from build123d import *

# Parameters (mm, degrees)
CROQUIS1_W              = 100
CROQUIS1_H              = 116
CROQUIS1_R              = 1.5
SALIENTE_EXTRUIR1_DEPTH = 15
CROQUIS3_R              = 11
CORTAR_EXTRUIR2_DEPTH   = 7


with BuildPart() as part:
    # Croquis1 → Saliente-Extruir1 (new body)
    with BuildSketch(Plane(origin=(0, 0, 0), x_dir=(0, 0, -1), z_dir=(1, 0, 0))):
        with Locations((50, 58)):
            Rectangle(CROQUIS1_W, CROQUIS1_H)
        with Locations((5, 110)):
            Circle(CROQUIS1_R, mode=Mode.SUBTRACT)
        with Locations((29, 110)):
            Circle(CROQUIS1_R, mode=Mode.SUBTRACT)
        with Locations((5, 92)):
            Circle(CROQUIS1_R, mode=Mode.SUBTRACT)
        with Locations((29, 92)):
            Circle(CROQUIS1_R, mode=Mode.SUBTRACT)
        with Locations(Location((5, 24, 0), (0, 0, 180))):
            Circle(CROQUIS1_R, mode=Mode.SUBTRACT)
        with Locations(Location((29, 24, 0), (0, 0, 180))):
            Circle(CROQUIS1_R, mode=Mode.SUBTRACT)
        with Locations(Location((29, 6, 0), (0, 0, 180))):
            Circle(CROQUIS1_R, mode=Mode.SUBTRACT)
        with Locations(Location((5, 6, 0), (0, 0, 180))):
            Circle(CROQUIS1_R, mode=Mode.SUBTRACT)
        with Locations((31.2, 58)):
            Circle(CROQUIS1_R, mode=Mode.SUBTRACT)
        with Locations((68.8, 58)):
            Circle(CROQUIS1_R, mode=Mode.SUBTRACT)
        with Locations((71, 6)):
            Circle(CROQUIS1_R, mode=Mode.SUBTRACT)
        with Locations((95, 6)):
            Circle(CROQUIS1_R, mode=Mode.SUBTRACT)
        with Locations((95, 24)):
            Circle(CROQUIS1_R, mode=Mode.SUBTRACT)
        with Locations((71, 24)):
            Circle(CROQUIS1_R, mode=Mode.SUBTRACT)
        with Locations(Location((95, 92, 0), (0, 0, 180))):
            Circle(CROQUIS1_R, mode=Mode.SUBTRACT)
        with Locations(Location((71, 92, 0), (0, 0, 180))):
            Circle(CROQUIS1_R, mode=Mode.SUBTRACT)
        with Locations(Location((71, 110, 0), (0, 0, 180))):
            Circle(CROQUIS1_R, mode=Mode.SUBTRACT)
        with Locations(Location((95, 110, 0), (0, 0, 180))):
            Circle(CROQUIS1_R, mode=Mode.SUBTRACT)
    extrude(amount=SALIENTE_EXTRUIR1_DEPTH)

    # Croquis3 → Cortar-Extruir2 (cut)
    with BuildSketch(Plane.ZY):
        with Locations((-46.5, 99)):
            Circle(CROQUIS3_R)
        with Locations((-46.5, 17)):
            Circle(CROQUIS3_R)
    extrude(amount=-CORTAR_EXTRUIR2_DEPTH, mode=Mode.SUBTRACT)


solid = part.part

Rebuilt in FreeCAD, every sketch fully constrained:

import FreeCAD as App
import Part
import Sketcher
from FreeCAD import Vector

doc = App.newDocument("Part")
params = doc.addObject("Spreadsheet::Sheet", "Params")
for row, (alias, value) in enumerate([
    ("sketch1_diameter", "3 mm"),
    ("sketch1_width", "116 mm"),
    ("sketch1_height", "100 mm"),
    ("pad1_length", "15 mm"),
    ("sketch2_diameter", "22 mm"),
    ("pocket1_length", "7 mm"),
], start=1):
    params.set(f"A{row}", alias)
    params.set(f"B{row}", "=" + value)
    params.setAlias(f"B{row}", alias)

body = doc.addObject("PartDesign::Body", "Body")

# Sketch on YZ plane
sketch1 = body.newObject("Sketcher::SketchObject", "Sketch")
sketch1.AttachmentSupport = (doc.getObject("YZ_Plane"), [""])
sketch1.MapMode = "FlatFace"
sketch1.addGeometry(Part.LineSegment(Vector(116, 0, 0), Vector(0, 0, 0)), False)
sketch1.addGeometry(Part.LineSegment(Vector(0, 0, 0), Vector(0, -100, 0)), False)
sketch1.addGeometry(Part.LineSegment(Vector(0, -100, 0), Vector(116, -100, 0)), False)
sketch1.addGeometry(Part.LineSegment(Vector(116, -100, 0), Vector(116, 0, 0)), False)
sketch1.addGeometry(Part.Circle(Vector(6, -5, 0), Vector(0, 0, 1), 1.5), False)
sketch1.addGeometry(Part.Circle(Vector(24, -5, 0), Vector(0, 0, 1), 1.5), False)
sketch1.addGeometry(Part.Circle(Vector(6, -29, 0), Vector(0, 0, 1), 1.5), False)
sketch1.addGeometry(Part.Circle(Vector(24, -29, 0), Vector(0, 0, 1), 1.5), False)
sketch1.addGeometry(Part.Circle(Vector(58, -31.2, 0), Vector(0, 0, 1), 1.5), False)
sketch1.addGeometry(Part.Circle(Vector(6, -71, 0), Vector(0, 0, 1), 1.5), False)
sketch1.addGeometry(Part.Circle(Vector(24, -71, 0), Vector(0, 0, 1), 1.5), False)
sketch1.addGeometry(Part.Circle(Vector(6, -95, 0), Vector(0, 0, 1), 1.5), False)
sketch1.addGeometry(Part.Circle(Vector(24, -95, 0), Vector(0, 0, 1), 1.5), False)
sketch1.addGeometry(Part.Circle(Vector(58, -68.8, 0), Vector(0, 0, 1), 1.5), False)
sketch1.addGeometry(Part.Circle(Vector(92, -5, 0), Vector(0, 0, 1), 1.5), False)
sketch1.addGeometry(Part.Circle(Vector(110, -5, 0), Vector(0, 0, 1), 1.5), False)
sketch1.addGeometry(Part.Circle(Vector(92, -29, 0), Vector(0, 0, 1), 1.5), False)
sketch1.addGeometry(Part.Circle(Vector(110, -29, 0), Vector(0, 0, 1), 1.5), False)
sketch1.addGeometry(Part.Circle(Vector(92, -71, 0), Vector(0, 0, 1), 1.5), False)
sketch1.addGeometry(Part.Circle(Vector(110, -71, 0), Vector(0, 0, 1), 1.5), False)
sketch1.addGeometry(Part.Circle(Vector(92, -95, 0), Vector(0, 0, 1), 1.5), False)
sketch1.addGeometry(Part.Circle(Vector(110, -95, 0), Vector(0, 0, 1), 1.5), False)
sketch1.addConstraint(Sketcher.Constraint("Coincident", 0, 2, 1, 1))
sketch1.addConstraint(Sketcher.Constraint("Coincident", 1, 2, 2, 1))
sketch1.addConstraint(Sketcher.Constraint("Coincident", 2, 2, 3, 1))
sketch1.addConstraint(Sketcher.Constraint("Coincident", 3, 2, 0, 1))
sketch1.addConstraint(Sketcher.Constraint("Horizontal", 0))
sketch1.addConstraint(Sketcher.Constraint("Vertical", 1))
sketch1.addConstraint(Sketcher.Constraint("Horizontal", 2))
sketch1.addConstraint(Sketcher.Constraint("Vertical", 3))
sketch1.addConstraint(Sketcher.Constraint("Coincident", 0, 2, -1, 1))
sketch1.addConstraint(Sketcher.Constraint("Equal", 4, 5))
sketch1.addConstraint(Sketcher.Constraint("Equal", 5, 6))
sketch1.addConstraint(Sketcher.Constraint("Equal", 6, 7))
sketch1.addConstraint(Sketcher.Constraint("Equal", 7, 8))
sketch1.addConstraint(Sketcher.Constraint("Equal", 8, 9))
sketch1.addConstraint(Sketcher.Constraint("Equal", 9, 10))
sketch1.addConstraint(Sketcher.Constraint("Equal", 10, 11))
sketch1.addConstraint(Sketcher.Constraint("Equal", 11, 12))
sketch1.addConstraint(Sketcher.Constraint("Equal", 12, 13))
sketch1.addConstraint(Sketcher.Constraint("Equal", 13, 14))
sketch1.addConstraint(Sketcher.Constraint("Equal", 14, 15))
sketch1.addConstraint(Sketcher.Constraint("Equal", 15, 16))
sketch1.addConstraint(Sketcher.Constraint("Equal", 16, 17))
sketch1.addConstraint(Sketcher.Constraint("Equal", 17, 18))
sketch1.addConstraint(Sketcher.Constraint("Equal", 18, 19))
sketch1.addConstraint(Sketcher.Constraint("Equal", 19, 20))
sketch1.addConstraint(Sketcher.Constraint("Equal", 20, 21))
sketch1.addConstraint(Sketcher.Constraint("Horizontal", 4, 3, 5, 3))
sketch1.addConstraint(Sketcher.Constraint("Horizontal", 6, 3, 7, 3))
sketch1.addConstraint(Sketcher.Constraint("Horizontal", 9, 3, 10, 3))
sketch1.addConstraint(Sketcher.Constraint("Horizontal", 11, 3, 12, 3))
sketch1.addConstraint(Sketcher.Constraint("Horizontal", 5, 3, 14, 3))
sketch1.addConstraint(Sketcher.Constraint("Horizontal", 14, 3, 15, 3))
sketch1.addConstraint(Sketcher.Constraint("Horizontal", 7, 3, 16, 3))
sketch1.addConstraint(Sketcher.Constraint("Horizontal", 16, 3, 17, 3))
sketch1.addConstraint(Sketcher.Constraint("Horizontal", 10, 3, 18, 3))
sketch1.addConstraint(Sketcher.Constraint("Horizontal", 18, 3, 19, 3))
sketch1.addConstraint(Sketcher.Constraint("Horizontal", 12, 3, 20, 3))
sketch1.addConstraint(Sketcher.Constraint("Horizontal", 20, 3, 21, 3))
sketch1.addConstraint(Sketcher.Constraint("Vertical", 4, 3, 6, 3))
sketch1.addConstraint(Sketcher.Constraint("Vertical", 5, 3, 7, 3))
sketch1.addConstraint(Sketcher.Constraint("Vertical", 6, 3, 9, 3))
sketch1.addConstraint(Sketcher.Constraint("Vertical", 7, 3, 10, 3))
sketch1.addConstraint(Sketcher.Constraint("Vertical", 9, 3, 11, 3))
sketch1.addConstraint(Sketcher.Constraint("Vertical", 10, 3, 12, 3))
sketch1.addConstraint(Sketcher.Constraint("Vertical", 8, 3, 13, 3))
sketch1.addConstraint(Sketcher.Constraint("Vertical", 14, 3, 16, 3))
sketch1.addConstraint(Sketcher.Constraint("Vertical", 15, 3, 17, 3))
sketch1.addConstraint(Sketcher.Constraint("Vertical", 16, 3, 18, 3))
sketch1.addConstraint(Sketcher.Constraint("Vertical", 17, 3, 19, 3))
sketch1.addConstraint(Sketcher.Constraint("Vertical", 18, 3, 20, 3))
sketch1.addConstraint(Sketcher.Constraint("Vertical", 19, 3, 21, 3))
sketch1.addConstraint(Sketcher.Constraint("Diameter", 4, 3.0))
sketch1.addConstraint(Sketcher.Constraint("DistanceX", 0, 2, 0, 1, 116.0))
sketch1.addConstraint(Sketcher.Constraint("DistanceY", 1, 2, 1, 1, 100.0))
sketch1.addConstraint(Sketcher.Constraint("DistanceX", -1, 1, 4, 3, 6.0))
sketch1.addConstraint(Sketcher.Constraint("DistanceY", 4, 3, -1, 1, 5.0))
sketch1.addConstraint(Sketcher.Constraint("DistanceX", -1, 1, 5, 3, 24.0))
sketch1.addConstraint(Sketcher.Constraint("DistanceY", 6, 3, -1, 1, 29.0))
sketch1.addConstraint(Sketcher.Constraint("DistanceX", -1, 1, 8, 3, 58.0))
sketch1.addConstraint(Sketcher.Constraint("DistanceY", 9, 3, -1, 1, 71.0))
sketch1.addConstraint(Sketcher.Constraint("DistanceY", 11, 3, -1, 1, 95.0))
sketch1.addConstraint(Sketcher.Constraint("DistanceX", -1, 1, 14, 3, 92.0))
sketch1.addConstraint(Sketcher.Constraint("DistanceX", -1, 1, 15, 3, 110.0))
sketch1.addConstraint(Sketcher.Constraint("DistanceY", 8, 3, -1, 1, 31.2))
sketch1.addConstraint(Sketcher.Constraint("DistanceY", 13, 3, -1, 1, 68.8))
sketch1.setExpression("Constraints[51]", "Params.sketch1_diameter")
sketch1.setExpression("Constraints[52]", "Params.sketch1_width")
sketch1.setExpression("Constraints[53]", "Params.sketch1_height")
pad1 = body.newObject("PartDesign::Pad", "Pad")
pad1.Profile = sketch1
pad1.setExpression("Length", "Params.pad1_length")

# Sketch on YZ plane
sketch2 = body.newObject("Sketcher::SketchObject", "Sketch001")
sketch2.AttachmentSupport = (doc.getObject("YZ_Plane"), [""])
sketch2.MapMode = "FlatFace"
sketch2.addGeometry(Part.Circle(Vector(99, -46, 0), Vector(0, 0, 1), 11), False)
sketch2.addGeometry(Part.Circle(Vector(17, -46, 0), Vector(0, 0, 1), 11), False)
sketch2.addConstraint(Sketcher.Constraint("Equal", 0, 1))
sketch2.addConstraint(Sketcher.Constraint("Horizontal", 0, 3, 1, 3))
sketch2.addConstraint(Sketcher.Constraint("Diameter", 0, 22.0))
sketch2.addConstraint(Sketcher.Constraint("DistanceX", -1, 1, 0, 3, 99.0))
sketch2.addConstraint(Sketcher.Constraint("DistanceX", -1, 1, 1, 3, 17.0))
sketch2.addConstraint(Sketcher.Constraint("DistanceY", 0, 3, -1, 1, 46.5))
sketch2.setExpression("Constraints[2]", "Params.sketch2_diameter")
pocket1 = body.newObject("PartDesign::Pocket", "Pocket")
pocket1.Profile = sketch2
pocket1.setExpression("Length", "Params.pocket1_length")
pocket1.Reversed = True

doc.recompute()
